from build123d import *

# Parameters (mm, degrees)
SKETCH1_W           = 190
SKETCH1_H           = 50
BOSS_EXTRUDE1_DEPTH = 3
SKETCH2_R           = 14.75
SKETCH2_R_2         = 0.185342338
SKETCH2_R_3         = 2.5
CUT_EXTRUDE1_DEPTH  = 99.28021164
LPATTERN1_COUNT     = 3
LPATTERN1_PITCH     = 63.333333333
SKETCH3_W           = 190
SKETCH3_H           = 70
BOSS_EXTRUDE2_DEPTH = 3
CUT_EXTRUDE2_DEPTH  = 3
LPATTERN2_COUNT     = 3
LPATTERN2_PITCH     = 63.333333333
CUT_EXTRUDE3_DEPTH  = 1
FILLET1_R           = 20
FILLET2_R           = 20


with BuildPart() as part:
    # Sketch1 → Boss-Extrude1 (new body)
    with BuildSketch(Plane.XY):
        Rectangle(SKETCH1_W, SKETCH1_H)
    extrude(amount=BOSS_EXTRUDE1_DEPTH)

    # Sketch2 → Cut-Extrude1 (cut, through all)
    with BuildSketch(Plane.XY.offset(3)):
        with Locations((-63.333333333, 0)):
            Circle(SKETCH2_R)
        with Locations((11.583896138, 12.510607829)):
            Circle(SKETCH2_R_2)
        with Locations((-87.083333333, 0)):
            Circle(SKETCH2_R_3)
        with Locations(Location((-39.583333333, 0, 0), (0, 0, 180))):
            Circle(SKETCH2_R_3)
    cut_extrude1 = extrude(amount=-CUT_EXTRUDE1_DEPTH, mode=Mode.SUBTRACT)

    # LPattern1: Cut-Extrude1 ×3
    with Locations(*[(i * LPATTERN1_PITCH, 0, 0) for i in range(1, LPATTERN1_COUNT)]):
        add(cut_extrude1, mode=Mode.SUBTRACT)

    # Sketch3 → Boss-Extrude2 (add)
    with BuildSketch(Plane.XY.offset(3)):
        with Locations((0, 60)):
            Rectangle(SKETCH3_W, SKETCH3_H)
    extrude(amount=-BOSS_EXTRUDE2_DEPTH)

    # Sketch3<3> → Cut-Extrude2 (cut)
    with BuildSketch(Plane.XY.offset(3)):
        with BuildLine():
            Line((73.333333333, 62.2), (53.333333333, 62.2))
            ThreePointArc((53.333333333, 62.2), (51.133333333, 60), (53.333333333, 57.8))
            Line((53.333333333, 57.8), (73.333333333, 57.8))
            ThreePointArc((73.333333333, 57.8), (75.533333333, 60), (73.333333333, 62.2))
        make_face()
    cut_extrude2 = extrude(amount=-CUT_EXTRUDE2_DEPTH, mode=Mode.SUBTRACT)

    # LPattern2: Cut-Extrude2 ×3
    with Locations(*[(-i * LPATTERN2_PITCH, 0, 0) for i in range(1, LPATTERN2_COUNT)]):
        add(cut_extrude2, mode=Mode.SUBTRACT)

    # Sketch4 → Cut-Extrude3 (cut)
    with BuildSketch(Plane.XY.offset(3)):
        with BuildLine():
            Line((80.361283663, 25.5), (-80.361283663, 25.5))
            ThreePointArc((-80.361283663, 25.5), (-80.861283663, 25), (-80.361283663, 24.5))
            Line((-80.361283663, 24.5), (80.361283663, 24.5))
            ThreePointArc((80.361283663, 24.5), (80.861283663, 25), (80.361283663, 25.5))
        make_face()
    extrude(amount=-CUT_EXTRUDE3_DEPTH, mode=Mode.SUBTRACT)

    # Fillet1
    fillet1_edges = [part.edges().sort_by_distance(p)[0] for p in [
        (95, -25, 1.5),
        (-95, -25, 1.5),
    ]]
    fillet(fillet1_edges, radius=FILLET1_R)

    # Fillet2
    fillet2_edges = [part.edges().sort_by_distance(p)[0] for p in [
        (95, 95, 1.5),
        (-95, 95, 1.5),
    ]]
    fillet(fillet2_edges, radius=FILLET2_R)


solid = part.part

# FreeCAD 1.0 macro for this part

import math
import FreeCAD as App
import Part
import Sketcher
Q = App.Units.Quantity


def edges_at(feature, points):
    """Names of the edges that pass closest to the given points."""
    edges = feature.Shape.Edges
    near = lambda p: min(range(len(edges)), key=lambda i: edges[i].distToShape(Part.Vertex(*p))[0])
    return sorted({f"Edge{near(p) + 1}" for p in points})

doc = App.newDocument("Part")
params = doc.addObject("Spreadsheet::Sheet", "Params")
for row, (alias, value) in enumerate([
    ("sketch1_width", "190 mm"),
    ("sketch1_height", "50 mm"),
    ("pad1_length", "3 mm"),
    ("sketch2_diameter", "5 mm"),
    ("sketch2_diameter2", "29.5 mm"),
    ("linearpattern_pitch", "63.333333 mm"),
    ("sketch3_width", "190 mm"),
    ("sketch3_height", "70 mm"),
    ("pad2_length", "3 mm"),
    ("sketch4_radius", "2.2 mm"),
    ("sketch4_width", "20 mm"),
    ("pocket2_length", "3 mm"),
    ("linearpattern2_pitch", "63.333333 mm"),
    ("sketch5_radius", "0.5 mm"),
    ("pocket3_length", "1 mm"),
    ("fillet_radius", "20 mm"),
    ("fillet2_radius", "20 mm"),
], start=1):
    params.set(f"A{row}", alias)
    params.set(f"B{row}", "=" + value)
    params.setAlias(f"B{row}", alias)

body = doc.addObject("PartDesign::Body", "Body")

# Sketch on XY plane
sketch1 = body.newObject("Sketcher::SketchObject", "Sketch")
sketch1.AttachmentSupport = (doc.getObject("XY_Plane"), [""])
sketch1.MapMode = "FlatFace"
sketch1.addGeometry(Part.LineSegment(App.Vector(-95, 25, 0), App.Vector(-95, -25, 0)), False)
sketch1.addGeometry(Part.LineSegment(App.Vector(-95, -25, 0), App.Vector(95, -25, 0)), False)
sketch1.addGeometry(Part.LineSegment(App.Vector(95, -25, 0), App.Vector(95, 25, 0)), False)
sketch1.addGeometry(Part.LineSegment(App.Vector(95, 25, 0), App.Vector(-95, 25, 0)), False)
sketch1.addConstraint(Sketcher.Constraint("Coincident", 0, 2, 1, 1))
sketch1.addConstraint(Sketcher.Constraint("Coincident", 1, 2, 2, 1))
sketch1.addConstraint(Sketcher.Constraint("Coincident", 2, 2, 3, 1))
sketch1.addConstraint(Sketcher.Constraint("Coincident", 3, 2, 0, 1))
sketch1.addConstraint(Sketcher.Constraint("Vertical", 0))
sketch1.addConstraint(Sketcher.Constraint("Horizontal", 1))
sketch1.addConstraint(Sketcher.Constraint("Vertical", 2))
sketch1.addConstraint(Sketcher.Constraint("Horizontal", 3))
sketch1.addConstraint(Sketcher.Constraint("Symmetric", 0, 2, 2, 2, -1, 1))
sketch1.addConstraint(Sketcher.Constraint("DistanceX", 1, 1, 1, 2, Q("190 mm")))
sketch1.addConstraint(Sketcher.Constraint("DistanceY", 0, 2, 0, 1, Q("50 mm")))
sketch1.setExpression("Constraints[9]", "Params.sketch1_width")
sketch1.setExpression("Constraints[10]", "Params.sketch1_height")
pad1 = body.newObject("PartDesign::Pad", "Pad")
pad1.Profile = sketch1
pad1.setExpression("Length", "Params.pad1_length")

# Sketch on XY plane
sketch2 = body.newObject("Sketcher::SketchObject", "Sketch001")
sketch2.AttachmentSupport = (doc.getObject("XY_Plane"), [""])
sketch2.MapMode = "FlatFace"
sketch2.AttachmentOffset = App.Placement(App.Vector(0, 0, 3), App.Rotation())
sketch2.addGeometry(Part.Circle(App.Vector(-63.33, 0, 0), App.Vector(0, 0, 1), 14.75), False)
sketch2.addGeometry(Part.Circle(App.Vector(11.58, 12.51, 0), App.Vector(0, 0, 1), 0.19), False)
sketch2.addGeometry(Part.Circle(App.Vector(-87.08, 0, 0), App.Vector(0, 0, 1), 2.5), False)
sketch2.addGeometry(Part.Circle(App.Vector(-39.58, 0, 0), App.Vector(0, 0, 1), 2.5), False)
sketch2.addConstraint(Sketcher.Constraint("Equal", 2, 3))
sketch2.addConstraint(Sketcher.Constraint("PointOnObject", 0, 3, -1))
sketch2.addConstraint(Sketcher.Constraint("PointOnObject", 2, 3, -1))
sketch2.addConstraint(Sketcher.Constraint("PointOnObject", 3, 3, -1))
sketch2.addConstraint(Sketcher.Constraint("Diameter", 2, Q("5 mm")))
sketch2.addConstraint(Sketcher.Constraint("Diameter", 0, Q("29.5 mm")))
sketch2.addConstraint(Sketcher.Constraint("DistanceX", 2, 3, 3, 3, Q("47.5 mm")))
sketch2.addConstraint(Sketcher.Constraint("DistanceX", 2, 3, 0, 3, Q("23.75 mm")))
sketch2.addConstraint(Sketcher.Constraint("Diameter", 1, Q("0.370685 mm")))
sketch2.addConstraint(Sketcher.Constraint("DistanceX", 0, 3, 1, 3, Q("74.917229 mm")))
sketch2.addConstraint(Sketcher.Constraint("DistanceX", 0, 3, -1, 1, Q("63.333333 mm")))
sketch2.addConstraint(Sketcher.Constraint("DistanceY", -1, 1, 1, 3, Q("12.510608 mm")))
sketch2.setExpression("Constraints[4]", "Params.sketch2_diameter")
sketch2.setExpression("Constraints[5]", "Params.sketch2_diameter2")
pocket1 = body.newObject("PartDesign::Pocket", "Pocket")
pocket1.Profile = sketch2
pocket1.Type = "ThroughAll"
doc.recompute()

linearpattern = body.newObject("PartDesign::LinearPattern", "LinearPattern")
linearpattern.Originals = [pocket1]
linearpattern.Direction = (doc.getObject("X_Axis"), [""])
linearpattern.Mode = "offset"
linearpattern.setExpression("Offset", "Params.linearpattern_pitch")
linearpattern.Occurrences = 3
body.Tip = linearpattern

# Sketch on XY plane
sketch3 = body.newObject("Sketcher::SketchObject", "Sketch002")
sketch3.AttachmentSupport = (doc.getObject("XY_Plane"), [""])
sketch3.MapMode = "FlatFace"
sketch3.AttachmentOffset = App.Placement(App.Vector(0, 0, 3), App.Rotation())
sketch3.addGeometry(Part.LineSegment(App.Vector(-95, 95, 0), App.Vector(-95, 25, 0)), False)
sketch3.addGeometry(Part.LineSegment(App.Vector(-95, 25, 0), App.Vector(95, 25, 0)), False)
sketch3.addGeometry(Part.LineSegment(App.Vector(95, 25, 0), App.Vector(95, 95, 0)), False)
sketch3.addGeometry(Part.LineSegment(App.Vector(95, 95, 0), App.Vector(-95, 95, 0)), False)
sketch3.addConstraint(Sketcher.Constraint("Coincident", 0, 2, 1, 1))
sketch3.addConstraint(Sketcher.Constraint("Coincident", 1, 2, 2, 1))
sketch3.addConstraint(Sketcher.Constraint("Coincident", 2, 2, 3, 1))
sketch3.addConstraint(Sketcher.Constraint("Coincident", 3, 2, 0, 1))
sketch3.addConstraint(Sketcher.Constraint("Vertical", 0))
sketch3.addConstraint(Sketcher.Constraint("Horizontal", 1))
sketch3.addConstraint(Sketcher.Constraint("Vertical", 2))
sketch3.addConstraint(Sketcher.Constraint("Horizontal", 3))
sketch3.addConstraint(Sketcher.Constraint("DistanceX", 1, 1, 1, 2, Q("190 mm")))
sketch3.addConstraint(Sketcher.Constraint("DistanceY", 0, 2, 0, 1, Q("70 mm")))
sketch3.addConstraint(Sketcher.Constraint("DistanceX", 0, 2, -1, 1, Q("95 mm")))
sketch3.addConstraint(Sketcher.Constraint("DistanceY", -1, 1, 0, 2, Q("25 mm")))
sketch3.setExpression("Constraints[8]", "Params.sketch3_width")
sketch3.setExpression("Constraints[9]", "Params.sketch3_height")
pad2 = body.newObject("PartDesign::Pad", "Pad001")
pad2.Profile = sketch3
pad2.setExpression("Length", "Params.pad2_length")
pad2.Reversed = True

# Sketch on XY plane
sketch4 = body.newObject("Sketcher::SketchObject", "Sketch003")
sketch4.AttachmentSupport = (doc.getObject("XY_Plane"), [""])
sketch4.MapMode = "FlatFace"
sketch4.AttachmentOffset = App.Placement(App.Vector(0, 0, 3), App.Rotation())
sketch4.addGeometry(Part.LineSegment(App.Vector(73.3, 62.2, 0), App.Vector(53.3, 62.2, 0)), False)
sketch4.addGeometry(Part.ArcOfCircle(Part.Circle(App.Vector(53.3, 60, 0), App.Vector(0, 0, 1), 2.2), math.radians(90), math.radians(270)), False)
sketch4.addGeometry(Part.LineSegment(App.Vector(53.3, 57.8, 0), App.Vector(73.3, 57.8, 0)), False)
sketch4.addGeometry(Part.ArcOfCircle(Part.Circle(App.Vector(73.3, 60, 0), App.Vector(0, 0, 1), 2.2), math.radians(-90), math.radians(90)), False)
sketch4.addConstraint(Sketcher.Constraint("Tangent", 0, 2, 1, 1))
sketch4.addConstraint(Sketcher.Constraint("Tangent", 1, 2, 2, 1))
sketch4.addConstraint(Sketcher.Constraint("Tangent", 2, 2, 3, 1))
sketch4.addConstraint(Sketcher.Constraint("Tangent", 3, 2, 0, 1))
sketch4.addConstraint(Sketcher.Constraint("Horizontal", 0))
sketch4.addConstraint(Sketcher.Constraint("Horizontal", 2))
sketch4.addConstraint(Sketcher.Constraint("Radius", 1, Q("2.2 mm")))
sketch4.addConstraint(Sketcher.Constraint("DistanceX", 0, 2, 0, 1, Q("20 mm")))
sketch4.addConstraint(Sketcher.Constraint("DistanceY", -1, 1, 1, 3, Q("60 mm")))
sketch4.addConstraint(Sketcher.Constraint("DistanceX", -1, 1, 1, 3, Q("53.333333 mm")))
sketch4.setExpression("Constraints[6]", "Params.sketch4_radius")
sketch4.setExpression("Constraints[7]", "Params.sketch4_width")
pocket2 = body.newObject("PartDesign::Pocket", "Pocket001")
pocket2.Profile = sketch4
pocket2.setExpression("Length", "Params.pocket2_length")
doc.recompute()

linearpattern2 = body.newObject("PartDesign::LinearPattern", "LinearPattern001")
linearpattern2.Originals = [pocket2]
linearpattern2.Direction = (doc.getObject("X_Axis"), [""])
linearpattern2.Mode = "offset"
linearpattern2.setExpression("Offset", "Params.linearpattern2_pitch")
linearpattern2.Occurrences = 3
linearpattern2.Reversed = True
body.Tip = linearpattern2

# Sketch on XY plane
sketch5 = body.newObject("Sketcher::SketchObject", "Sketch004")
sketch5.AttachmentSupport = (doc.getObject("XY_Plane"), [""])
sketch5.MapMode = "FlatFace"
sketch5.AttachmentOffset = App.Placement(App.Vector(0, 0, 3), App.Rotation())
sketch5.addGeometry(Part.LineSegment(App.Vector(80.4, 25.5, 0), App.Vector(-80.4, 25.5, 0)), False)
sketch5.addGeometry(Part.ArcOfCircle(Part.Circle(App.Vector(-80.4, 25, 0), App.Vector(0, 0, 1), 0.5), math.radians(90), math.radians(270)), False)
sketch5.addGeometry(Part.LineSegment(App.Vector(-80.4, 24.5, 0), App.Vector(80.4, 24.5, 0)), False)
sketch5.addGeometry(Part.ArcOfCircle(Part.Circle(App.Vector(80.4, 25, 0), App.Vector(0, 0, 1), 0.5), math.radians(-90), math.radians(90)), False)
sketch5.addConstraint(Sketcher.Constraint("Tangent", 0, 2, 1, 1))
sketch5.addConstraint(Sketcher.Constraint("Tangent", 1, 2, 2, 1))
sketch5.addConstraint(Sketcher.Constraint("Tangent", 2, 2, 3, 1))
sketch5.addConstraint(Sketcher.Constraint("Tangent", 3, 2, 0, 1))
sketch5.addConstraint(Sketcher.Constraint("Horizontal", 0))
sketch5.addConstraint(Sketcher.Constraint("Horizontal", 2))
sketch5.addConstraint(Sketcher.Constraint("Radius", 1, Q("0.5 mm")))
sketch5.addConstraint(Sketcher.Constraint("DistanceY", -1, 1, 1, 3, Q("25 mm")))
sketch5.addConstraint(Sketcher.Constraint("DistanceX", 0, 2, 0, 1, Q("160.722567 mm")))
sketch5.addConstraint(Sketcher.Constraint("DistanceX", 1, 3, -1, 1, Q("80.361284 mm")))
sketch5.setExpression("Constraints[6]", "Params.sketch5_radius")
pocket3 = body.newObject("PartDesign::Pocket", "Pocket002")
pocket3.Profile = sketch5
pocket3.setExpression("Length", "Params.pocket3_length")
doc.recompute()

fillet = body.newObject("PartDesign::Fillet", "Fillet")
fillet.Base = (pocket3, edges_at(pocket3, [(95, -25, 1.5), (-95, -25, 1.5)]))
fillet.setExpression("Radius", "Params.fillet_radius")
doc.recompute()

fillet2 = body.newObject("PartDesign::Fillet", "Fillet001")
fillet2.Base = (fillet, edges_at(fillet, [(95, 95, 1.5), (-95, 95, 1.5)]))
fillet2.setExpression("Radius", "Params.fillet2_radius")

doc.recompute()
